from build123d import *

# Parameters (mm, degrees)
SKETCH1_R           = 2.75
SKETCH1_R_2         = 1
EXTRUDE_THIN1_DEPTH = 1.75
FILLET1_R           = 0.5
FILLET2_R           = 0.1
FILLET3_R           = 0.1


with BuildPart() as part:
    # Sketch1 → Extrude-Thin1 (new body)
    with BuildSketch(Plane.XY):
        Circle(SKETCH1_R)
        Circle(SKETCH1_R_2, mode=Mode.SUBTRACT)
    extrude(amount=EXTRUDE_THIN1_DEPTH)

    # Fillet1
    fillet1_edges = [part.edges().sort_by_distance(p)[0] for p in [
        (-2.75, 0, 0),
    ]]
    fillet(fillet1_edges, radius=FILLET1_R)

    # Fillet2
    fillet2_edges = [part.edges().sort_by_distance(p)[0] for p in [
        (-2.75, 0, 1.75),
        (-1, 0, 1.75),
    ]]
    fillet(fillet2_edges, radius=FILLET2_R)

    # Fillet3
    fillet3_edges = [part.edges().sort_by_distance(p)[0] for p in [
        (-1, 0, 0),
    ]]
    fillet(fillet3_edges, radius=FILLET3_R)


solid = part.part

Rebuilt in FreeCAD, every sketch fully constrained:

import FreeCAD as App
import Part
import Sketcher

V = App.Vector
Q = App.Units.Quantity


def edges_at(feature, points):
    """Names of the edges that pass closest to the given points."""
    edges = feature.Shape.Edges
    near = lambda p: min(range(len(edges)), key=lambda i: edges[i].distToShape(Part.Vertex(*p))[0])
    return sorted({f"Edge{near(p) + 1}" for p in points})

doc = App.newDocument("Part")
body = doc.addObject("PartDesign::Body", "Body")

sketch1 = doc.addObject("Sketcher::SketchObject", "Sketch")
body.addObject(sketch1)
sketch1.AttachmentSupport = (doc.XY_Plane, [""])
sketch1.MapMode = "FlatFace"
sketch1.addGeometry(Part.Circle(V(0, 0, 0), V(0, 0, 1), 2.75), False)
sketch1.addGeometry(Part.Circle(V(0, 0, 0), V(0, 0, 1), 1), False)
sketch1.addConstraint(Sketcher.Constraint("Coincident", 0, 3, -1, 1))
sketch1.addConstraint(Sketcher.Constraint("Coincident", 1, 3, -1, 1))
sketch1.addConstraint(Sketcher.Constraint("Diameter", 1, Q("2 mm")))
sketch1.addConstraint(Sketcher.Constraint("Diameter", 0, Q("5.5 mm")))
pad1 = doc.addObject("PartDesign::Pad", "Pad")
body.addObject(pad1)
pad1.Profile = sketch1
pad1.Length = 1.75
doc.recompute()

fillet = doc.addObject("PartDesign::Fillet", "Fillet")
body.addObject(fillet)
fillet.Base = (pad1, edges_at(pad1, [(-2.75, 0, 0)]))
fillet.Radius = 0.5
doc.recompute()

fillet2 = doc.addObject("PartDesign::Fillet", "Fillet001")
body.addObject(fillet2)
fillet2.Base = (fillet, edges_at(fillet, [(-2.75, 0, 1.75), (-1, 0, 1.75)]))
fillet2.Radius = 0.1
doc.recompute()

fillet3 = doc.addObject("PartDesign::Fillet", "Fillet002")
body.addObject(fillet3)
fillet3.Base = (fillet2, edges_at(fillet2, [(-1, 0, 0)]))
fillet3.Radius = 0.1

doc.recompute()
